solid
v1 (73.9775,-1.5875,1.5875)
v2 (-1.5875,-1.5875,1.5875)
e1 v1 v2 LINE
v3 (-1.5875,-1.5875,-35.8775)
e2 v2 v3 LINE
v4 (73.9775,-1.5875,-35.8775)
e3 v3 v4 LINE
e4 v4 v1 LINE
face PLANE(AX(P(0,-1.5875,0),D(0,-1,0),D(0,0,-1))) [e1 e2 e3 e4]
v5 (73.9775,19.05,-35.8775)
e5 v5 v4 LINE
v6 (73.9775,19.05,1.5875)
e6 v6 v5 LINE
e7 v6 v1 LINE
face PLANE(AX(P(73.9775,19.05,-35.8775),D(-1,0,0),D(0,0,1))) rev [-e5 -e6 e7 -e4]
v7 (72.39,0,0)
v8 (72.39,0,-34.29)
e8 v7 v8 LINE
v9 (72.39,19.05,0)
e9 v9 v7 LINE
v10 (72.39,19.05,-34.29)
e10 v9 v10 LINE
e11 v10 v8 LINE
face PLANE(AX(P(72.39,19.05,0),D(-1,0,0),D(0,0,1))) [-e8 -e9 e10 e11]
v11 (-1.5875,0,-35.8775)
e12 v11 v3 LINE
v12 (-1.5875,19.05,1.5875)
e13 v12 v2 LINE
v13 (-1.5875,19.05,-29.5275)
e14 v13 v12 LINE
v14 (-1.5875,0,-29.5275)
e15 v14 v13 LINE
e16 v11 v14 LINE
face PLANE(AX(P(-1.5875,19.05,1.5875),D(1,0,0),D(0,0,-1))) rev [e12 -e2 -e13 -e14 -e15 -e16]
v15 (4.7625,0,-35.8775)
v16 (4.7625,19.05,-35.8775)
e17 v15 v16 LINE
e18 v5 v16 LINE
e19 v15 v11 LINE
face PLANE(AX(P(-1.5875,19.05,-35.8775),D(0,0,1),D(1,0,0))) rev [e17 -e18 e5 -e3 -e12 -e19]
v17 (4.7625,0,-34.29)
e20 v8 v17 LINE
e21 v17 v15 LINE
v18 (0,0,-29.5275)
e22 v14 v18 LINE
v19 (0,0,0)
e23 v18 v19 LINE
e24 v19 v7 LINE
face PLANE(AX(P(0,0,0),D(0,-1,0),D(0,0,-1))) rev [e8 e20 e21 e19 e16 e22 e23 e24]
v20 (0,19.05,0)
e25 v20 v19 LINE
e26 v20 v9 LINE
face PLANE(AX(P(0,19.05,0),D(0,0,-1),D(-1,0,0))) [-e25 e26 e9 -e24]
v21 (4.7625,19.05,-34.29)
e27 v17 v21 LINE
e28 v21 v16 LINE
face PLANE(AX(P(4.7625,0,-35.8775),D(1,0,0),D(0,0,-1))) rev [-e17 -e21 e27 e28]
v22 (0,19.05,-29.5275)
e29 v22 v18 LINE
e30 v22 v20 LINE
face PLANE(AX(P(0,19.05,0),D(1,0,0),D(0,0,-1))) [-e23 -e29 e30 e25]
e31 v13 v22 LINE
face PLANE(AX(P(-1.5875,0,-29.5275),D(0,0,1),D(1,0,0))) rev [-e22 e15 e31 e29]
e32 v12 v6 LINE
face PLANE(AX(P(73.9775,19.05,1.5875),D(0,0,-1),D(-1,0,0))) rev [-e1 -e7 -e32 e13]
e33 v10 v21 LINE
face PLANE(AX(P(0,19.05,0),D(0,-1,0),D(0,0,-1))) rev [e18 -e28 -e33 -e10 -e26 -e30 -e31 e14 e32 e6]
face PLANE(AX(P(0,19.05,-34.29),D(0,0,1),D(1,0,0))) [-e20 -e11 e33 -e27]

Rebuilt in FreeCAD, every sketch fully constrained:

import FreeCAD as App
import Part
import Sketcher
Q = App.Units.Quantity

doc = App.newDocument("Part")
params = doc.addObject("Spreadsheet::Sheet", "Params")
for row, (alias, value) in enumerate([
    ("sketch1_width", "2.85 in"),
    ("sketch1_height", "1.35 in"),
    ("sketch1_width2", "2.975 in"),
    ("sketch1_height2", "1.475 in"),
    ("pad1_length", "0.75 in"),
    ("sketch2_width", "2.975 in"),
    ("sketch2_height", "1.475 in"),
    ("pad2_length", "0.0625 in"),
    ("sketch3_width", "0.25 in"),
    ("pocket1_length", "0.75 in"),
], start=1):
    params.set(f"A{row}", alias)
    params.set(f"B{row}", "=" + value)
    params.setAlias(f"B{row}", alias)

body = doc.addObject("PartDesign::Body", "Body")

# Sketch on XZ plane
sketch1 = body.newObject("Sketcher::SketchObject", "Sketch")
sketch1.AttachmentSupport = (doc.getObject("XZ_Plane"), [""])
sketch1.MapMode = "FlatFace"
sketch1.addGeometry([
    Part.LineSegment(App.Vector(-2, -36, 0), App.Vector(-2, 2, 0)),  # 0
    Part.LineSegment(App.Vector(-2, 2, 0), App.Vector(74, 2, 0)),  # 1
    Part.LineSegment(App.Vector(74, 2, 0), App.Vector(74, -36, 0)),  # 2
    Part.LineSegment(App.Vector(74, -36, 0), App.Vector(-2, -36, 0)),  # 3
    Part.LineSegment(App.Vector(72, 0, 0), App.Vector(0, 0, 0)),  # 4
    Part.LineSegment(App.Vector(0, 0, 0), App.Vector(0, -34, 0)),  # 5
    Part.LineSegment(App.Vector(0, -34, 0), App.Vector(72, -34, 0)),  # 6
    Part.LineSegment(App.Vector(72, -34, 0), App.Vector(72, 0, 0)),  # 7
], False)
sketch1.addConstraint([
    Sketcher.Constraint("Coincident", 0, 2, 1, 1),
    Sketcher.Constraint("Coincident", 1, 2, 2, 1),
    Sketcher.Constraint("Coincident", 2, 2, 3, 1),
    Sketcher.Constraint("Coincident", 3, 2, 0, 1),
    Sketcher.Constraint("Coincident", 4, 2, 5, 1),
    Sketcher.Constraint("Coincident", 5, 2, 6, 1),
    Sketcher.Constraint("Coincident", 6, 2, 7, 1),
    Sketcher.Constraint("Coincident", 7, 2, 4, 1),
    Sketcher.Constraint("Vertical", 0),
    Sketcher.Constraint("Horizontal", 1),
    Sketcher.Constraint("Vertical", 2),
    Sketcher.Constraint("Horizontal", 3),
    Sketcher.Constraint("Horizontal", 4),
    Sketcher.Constraint("Vertical", 5),
    Sketcher.Constraint("Horizontal", 6),
    Sketcher.Constraint("Vertical", 7),
    Sketcher.Constraint("Coincident", 4, 2, -1, 1),
    Sketcher.Constraint("DistanceX", 4, 2, 4, 1, Q("2.85 in")),
    Sketcher.Constraint("DistanceY", 5, 2, 5, 1, Q("1.35 in")),
    Sketcher.Constraint("DistanceX", 1, 1, 1, 2, Q("2.975 in")),
    Sketcher.Constraint("DistanceY", 0, 1, 0, 2, Q("1.475 in")),
    Sketcher.Constraint("DistanceX", 0, 2, -1, 1, Q("0.0625 in")),
    Sketcher.Constraint("DistanceY", -1, 1, 0, 2, Q("0.0625 in")),
])
sketch1.setExpression("Constraints[17]", "Params.sketch1_width")
sketch1.setExpression("Constraints[18]", "Params.sketch1_height")
sketch1.setExpression("Constraints[19]", "Params.sketch1_width2")
sketch1.setExpression("Constraints[20]", "Params.sketch1_height2")
pad1 = body.newObject("PartDesign::Pad", "Pad")
pad1.Profile = sketch1
pad1.setExpression("Length", "Params.pad1_length")
pad1.Reversed = True

# Sketch on XZ plane
sketch2 = body.newObject("Sketcher::SketchObject", "Sketch001")
sketch2.AttachmentSupport = (doc.getObject("XZ_Plane"), [""])
sketch2.MapMode = "FlatFace"
sketch2.addGeometry([
    Part.LineSegment(App.Vector(-2, 2, 0), App.Vector(-2, -36, 0)),
    Part.LineSegment(App.Vector(-2, -36, 0), App.Vector(74, -36, 0)),
    Part.LineSegment(App.Vector(74, -36, 0), App.Vector(74, 2, 0)),
    Part.LineSegment(App.Vector(74, 2, 0), App.Vector(-2, 2, 0)),
], False)
sketch2.addConstraint([
    Sketcher.Constraint("Coincident", 0, 2, 1, 1),
    Sketcher.Constraint("Coincident", 1, 2, 2, 1),
    Sketcher.Constraint("Coincident", 2, 2, 3, 1),
    Sketcher.Constraint("Coincident", 3, 2, 0, 1),
    Sketcher.Constraint("Vertical", 0),
    Sketcher.Constraint("Horizontal", 1),
    Sketcher.Constraint("Vertical", 2),
    Sketcher.Constraint("Horizontal", 3),
    Sketcher.Constraint("DistanceX", 1, 1, 1, 2, Q("2.975 in")),
    Sketcher.Constraint("DistanceY", 0, 2, 0, 1, Q("1.475 in")),
    Sketcher.Constraint("DistanceX", 0, 2, -1, 1, Q("0.0625 in")),
    Sketcher.Constraint("DistanceY", -1, 1, 2, 2, Q("0.0625 in")),
])
sketch2.setExpression("Constraints[8]", "Params.sketch2_width")
sketch2.setExpression("Constraints[9]", "Params.sketch2_height")
pad2 = body.newObject("PartDesign::Pad", "Pad001")
pad2.Profile = sketch2
pad2.setExpression("Length", "Params.pad2_length")

# Sketch on XZ plane
sketch3 = body.newObject("Sketcher::SketchObject", "Sketch002")
sketch3.AttachmentSupport = (doc.getObject("XZ_Plane"), [""])
sketch3.MapMode = "FlatFace"
sketch3.AttachmentOffset = App.Placement(App.Vector(0, 0, -0.75 * 25.4), App.Rotation())
sketch3.addGeometry([
    Part.LineSegment(App.Vector(-2, -36, 0), App.Vector(-2, -30, 0)),
    Part.LineSegment(App.Vector(-2, -30, 0), App.Vector(5, -30, 0)),
    Part.LineSegment(App.Vector(5, -30, 0), App.Vector(5, -36, 0)),
    Part.LineSegment(App.Vector(5, -36, 0), App.Vector(-2, -36, 0)),
], False)
sketch3.addConstraint([
    Sketcher.Constraint("Coincident", 0, 2, 1, 1),
    Sketcher.Constraint("Coincident", 1, 2, 2, 1),
    Sketcher.Constraint("Coincident", 2, 2, 3, 1),
    Sketcher.Constraint("Coincident", 3, 2, 0, 1),
    Sketcher.Constraint("Vertical", 0),
    Sketcher.Constraint("Horizontal", 1),
    Sketcher.Constraint("Vertical", 2),
    Sketcher.Constraint("Horizontal", 3),
    Sketcher.Constraint("Equal", 3, 0),
    Sketcher.Constraint("DistanceX", 1, 1, 1, 2, Q("0.25 in")),
    Sketcher.Constraint("DistanceX", 0, 2, -1, 1, Q("0.0625 in")),
    Sketcher.Constraint("DistanceY", 0, 2, -1, 1, Q("1.1625 in")),
])
sketch3.setExpression("Constraints[9]", "Params.sketch3_width")
pocket1 = body.newObject("PartDesign::Pocket", "Pocket")
pocket1.Profile = sketch3
pocket1.setExpression("Length", "Params.pocket1_length")
pocket1.Reversed = True

doc.recompute()
